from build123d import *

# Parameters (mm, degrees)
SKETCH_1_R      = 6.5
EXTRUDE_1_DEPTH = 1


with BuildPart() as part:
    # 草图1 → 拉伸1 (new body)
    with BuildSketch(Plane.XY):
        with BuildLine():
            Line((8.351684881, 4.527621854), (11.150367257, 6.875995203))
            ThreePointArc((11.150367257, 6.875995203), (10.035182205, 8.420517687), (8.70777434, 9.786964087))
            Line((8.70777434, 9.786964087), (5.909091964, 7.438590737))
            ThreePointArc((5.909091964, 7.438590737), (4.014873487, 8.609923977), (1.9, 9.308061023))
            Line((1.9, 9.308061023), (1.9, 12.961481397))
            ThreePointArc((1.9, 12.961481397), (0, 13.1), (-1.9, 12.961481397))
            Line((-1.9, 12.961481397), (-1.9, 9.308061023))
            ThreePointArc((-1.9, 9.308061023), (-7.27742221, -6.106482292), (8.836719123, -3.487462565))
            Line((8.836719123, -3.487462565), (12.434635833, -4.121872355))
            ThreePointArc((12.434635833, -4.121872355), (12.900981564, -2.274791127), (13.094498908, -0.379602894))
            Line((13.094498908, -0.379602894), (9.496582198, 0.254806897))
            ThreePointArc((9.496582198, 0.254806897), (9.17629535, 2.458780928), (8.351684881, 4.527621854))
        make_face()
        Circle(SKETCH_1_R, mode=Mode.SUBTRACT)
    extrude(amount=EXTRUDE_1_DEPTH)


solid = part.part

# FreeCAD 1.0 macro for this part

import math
import FreeCAD as App
import Part
import Sketcher

V = App.Vector
Q = App.Units.Quantity

doc = App.newDocument("Part")
params = doc.addObject("Spreadsheet::Sheet", "Params")
for row, (alias, value) in enumerate([
    ("sketch1_diameter", "13 mm"),
    ("sketch1_radius", "13.1 mm"),
    ("sketch1_radius2", "9.5 mm"),
    ("pad1_length", "1 mm"),
], start=1):
    params.set(f"A{row}", alias)
    params.set(f"B{row}", "=" + value)
    params.setAlias(f"B{row}", alias)

body = doc.addObject("PartDesign::Body", "Body")

sketch1 = body.newObject("Sketcher::SketchObject", "Sketch")
sketch1.AttachmentSupport = (doc.getObject("XY_Plane"), [""])
sketch1.MapMode = "FlatFace"
sketch1.addGeometry(Part.LineSegment(V(8.4, 4.5, 0), V(11.2, 6.9, 0)), False)
sketch1.addGeometry(Part.ArcOfCircle(Part.Circle(V(0, 0, 0), V(0, 0, 1), 13.1), math.radians(31.66), math.radians(48.34)), False)
sketch1.addGeometry(Part.LineSegment(V(8.7, 9.8, 0), V(5.9, 7.4, 0)), False)
sketch1.addGeometry(Part.ArcOfCircle(Part.Circle(V(0, 0, 0), V(0, 0, 1), 9.5), math.radians(52), math.radians(78)), False)
sketch1.addGeometry(Part.LineSegment(V(1.9, 9.3, 0), V(1.9, 13, 0)), False)
sketch1.addGeometry(Part.ArcOfCircle(Part.Circle(V(0, 0, 0), V(0, 0, 1), 13.1), math.radians(81.66), math.radians(98.34)), False)
sketch1.addGeometry(Part.LineSegment(V(-1.9, 13, 0), V(-1.9, 9.3, 0)), False)
sketch1.addGeometry(Part.ArcOfCircle(Part.Circle(V(0, 0, 0), V(0, 0, 1), 9.5), math.radians(102), math.radians(338)), False)
sketch1.addGeometry(Part.LineSegment(V(8.8, -3.5, 0), V(12.4, -4.1, 0)), False)
sketch1.addGeometry(Part.ArcOfCircle(Part.Circle(V(0, 0, 0), V(0, 0, 1), 13.1), math.radians(-18.34), math.radians(-1.66)), False)
sketch1.addGeometry(Part.LineSegment(V(13.1, -0.4, 0), V(9.5, 0.3, 0)), False)
sketch1.addGeometry(Part.ArcOfCircle(Part.Circle(V(0, 0, 0), V(0, 0, 1), 9.5), math.radians(2), math.radians(28)), False)
sketch1.addGeometry(Part.Circle(V(0, 0, 0), V(0, 0, 1), 6.5), False)
sketch1.addConstraint(Sketcher.Constraint("Coincident", 0, 2, 1, 1))
sketch1.addConstraint(Sketcher.Constraint("Coincident", 1, 2, 2, 1))
sketch1.addConstraint(Sketcher.Constraint("Coincident", 2, 2, 3, 1))
sketch1.addConstraint(Sketcher.Constraint("Coincident", 3, 2, 4, 1))
sketch1.addConstraint(Sketcher.Constraint("Coincident", 4, 2, 5, 1))
sketch1.addConstraint(Sketcher.Constraint("Coincident", 5, 2, 6, 1))
sketch1.addConstraint(Sketcher.Constraint("Coincident", 6, 2, 7, 1))
sketch1.addConstraint(Sketcher.Constraint("Coincident", 7, 2, 8, 1))
sketch1.addConstraint(Sketcher.Constraint("Coincident", 8, 2, 9, 1))
sketch1.addConstraint(Sketcher.Constraint("Coincident", 9, 2, 10, 1))
sketch1.addConstraint(Sketcher.Constraint("Coincident", 10, 2, 11, 1))
sketch1.addConstraint(Sketcher.Constraint("Coincident", 11, 2, 0, 1))
sketch1.addConstraint(Sketcher.Constraint("Vertical", 4))
sketch1.addConstraint(Sketcher.Constraint("Vertical", 6))
sketch1.addConstraint(Sketcher.Constraint("Coincident", 1, 3, -1, 1))
sketch1.addConstraint(Sketcher.Constraint("Coincident", 3, 3, -1, 1))
sketch1.addConstraint(Sketcher.Constraint("Coincident", 5, 3, -1, 1))
sketch1.addConstraint(Sketcher.Constraint("Coincident", 7, 3, -1, 1))
sketch1.addConstraint(Sketcher.Constraint("Coincident", 9, 3, -1, 1))
sketch1.addConstraint(Sketcher.Constraint("Coincident", 11, 3, -1, 1))
sketch1.addConstraint(Sketcher.Constraint("Coincident", 12, 3, -1, 1))
sketch1.addConstraint(Sketcher.Constraint("Equal", 1, 5))
sketch1.addConstraint(Sketcher.Constraint("Equal", 3, 7))
sketch1.addConstraint(Sketcher.Constraint("Equal", 5, 9))
sketch1.addConstraint(Sketcher.Constraint("Equal", 7, 11))
sketch1.addConstraint(Sketcher.Constraint("Parallel", 0, 2))
sketch1.addConstraint(Sketcher.Constraint("Parallel", 8, 10))
sketch1.addConstraint(Sketcher.Constraint("Horizontal", 4, 2, 5, 2))
sketch1.addConstraint(Sketcher.Constraint("Equal", 0, 2))
sketch1.addConstraint(Sketcher.Constraint("Equal", 2, 8))
sketch1.addConstraint(Sketcher.Constraint("Equal", 8, 10))
sketch1.addConstraint(Sketcher.Constraint("Diameter", 12, Q("13 mm")))
sketch1.addConstraint(Sketcher.Constraint("Radius", 1, Q("13.1 mm")))
sketch1.addConstraint(Sketcher.Constraint("Radius", 3, Q("9.5 mm")))
sketch1.addConstraint(Sketcher.Constraint("Angle", 0, Q("40 deg")))
sketch1.addConstraint(Sketcher.Constraint("Angle", 8, Q("-10 deg")))
sketch1.addConstraint(Sketcher.Constraint("DistanceX", -1, 1, 3, 2, Q("1.9 mm")))
sketch1.addConstraint(Sketcher.Constraint("DistanceX", -1, 1, 9, 2, Q("13.094499 mm")))
sketch1.setExpression("Constraints[31]", "Params.sketch1_diameter")
sketch1.setExpression("Constraints[32]", "Params.sketch1_radius")
sketch1.setExpression("Constraints[33]", "Params.sketch1_radius2")
pad1 = body.newObject("PartDesign::Pad", "Pad")
pad1.Profile = sketch1
pad1.setExpression("Length", "Params.pad1_length")

doc.recompute()
